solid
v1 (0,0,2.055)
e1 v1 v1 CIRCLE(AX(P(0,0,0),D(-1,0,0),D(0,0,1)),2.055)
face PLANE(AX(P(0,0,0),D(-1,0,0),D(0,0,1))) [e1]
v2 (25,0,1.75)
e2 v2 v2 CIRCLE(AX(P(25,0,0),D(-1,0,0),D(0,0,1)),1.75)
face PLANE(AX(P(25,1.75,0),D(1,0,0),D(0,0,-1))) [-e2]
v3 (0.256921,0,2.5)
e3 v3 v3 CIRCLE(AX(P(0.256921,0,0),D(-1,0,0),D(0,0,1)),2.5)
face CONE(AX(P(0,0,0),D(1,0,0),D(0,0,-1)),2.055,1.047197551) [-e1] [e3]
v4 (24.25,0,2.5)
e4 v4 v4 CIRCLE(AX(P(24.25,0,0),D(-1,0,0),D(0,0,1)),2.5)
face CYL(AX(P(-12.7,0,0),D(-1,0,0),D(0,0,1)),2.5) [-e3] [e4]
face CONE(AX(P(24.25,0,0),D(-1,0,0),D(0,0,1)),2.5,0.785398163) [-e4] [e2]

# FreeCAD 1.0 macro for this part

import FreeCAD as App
import Part
import Sketcher
from FreeCAD import Vector
Q = App.Units.Quantity


def add_polygon(sketch, points):
    """Adds a closed chain of lines whose ends are joined by coincident constraints."""
    first, n = sketch.GeometryCount, len(points)
    for a, b in zip(points, points[1:] + points[:1]):
        sketch.addGeometry(Part.LineSegment(App.Vector(*a, 0), App.Vector(*b, 0)), False)
    for i in range(n):
        sketch.addConstraint(Sketcher.Constraint("Coincident", first + i, 2, first + (i + 1) % n, 1))

doc = App.newDocument("Part")
body = doc.addObject("PartDesign::Body", "Body")

sketch1 = body.newObject("Sketcher::SketchObject", "Sketch")
sketch1.AttachmentSupport = (doc.getObject("XY_Plane"), [""])
sketch1.MapMode = "FlatFace"
add_polygon(sketch1, [(0, 2.055), (0, 0), (25, 0), (25, 1.75), (24.25, 2.5), (0.256921, 2.5)])
sketch1.addConstraint(Sketcher.Constraint("Vertical", 0))
sketch1.addConstraint(Sketcher.Constraint("Horizontal", 1))
sketch1.addConstraint(Sketcher.Constraint("Vertical", 2))
sketch1.addConstraint(Sketcher.Constraint("Horizontal", 4))
sketch1.addConstraint(Sketcher.Constraint("Coincident", 0, 2, -1, 1))
sketch1.addConstraint(Sketcher.Constraint("DistanceX", 1, 1, 1, 2, Q("25 mm")))
sketch1.addConstraint(Sketcher.Constraint("Angle", 3, Q("135 deg")))
sketch1.addConstraint(Sketcher.Constraint("Angle", 5, Q("-120 deg")))
sketch1.addConstraint(Sketcher.Constraint("DistanceY", 2, 1, 2, 2, Q("1.75 mm")))
sketch1.addConstraint(Sketcher.Constraint("DistanceY", -1, 1, 3, 2, Q("2.5 mm")))
sketch1.addConstraint(Sketcher.Constraint("DistanceY", 0, 2, 0, 1, Q("2.055 mm")))
revolution = body.newObject("PartDesign::Revolution", "Revolution")
revolution.Profile = sketch1
revolution.ReferenceAxis = (sketch1, ["H_Axis"])
revolution.Angle = 360

doc.recompute()
